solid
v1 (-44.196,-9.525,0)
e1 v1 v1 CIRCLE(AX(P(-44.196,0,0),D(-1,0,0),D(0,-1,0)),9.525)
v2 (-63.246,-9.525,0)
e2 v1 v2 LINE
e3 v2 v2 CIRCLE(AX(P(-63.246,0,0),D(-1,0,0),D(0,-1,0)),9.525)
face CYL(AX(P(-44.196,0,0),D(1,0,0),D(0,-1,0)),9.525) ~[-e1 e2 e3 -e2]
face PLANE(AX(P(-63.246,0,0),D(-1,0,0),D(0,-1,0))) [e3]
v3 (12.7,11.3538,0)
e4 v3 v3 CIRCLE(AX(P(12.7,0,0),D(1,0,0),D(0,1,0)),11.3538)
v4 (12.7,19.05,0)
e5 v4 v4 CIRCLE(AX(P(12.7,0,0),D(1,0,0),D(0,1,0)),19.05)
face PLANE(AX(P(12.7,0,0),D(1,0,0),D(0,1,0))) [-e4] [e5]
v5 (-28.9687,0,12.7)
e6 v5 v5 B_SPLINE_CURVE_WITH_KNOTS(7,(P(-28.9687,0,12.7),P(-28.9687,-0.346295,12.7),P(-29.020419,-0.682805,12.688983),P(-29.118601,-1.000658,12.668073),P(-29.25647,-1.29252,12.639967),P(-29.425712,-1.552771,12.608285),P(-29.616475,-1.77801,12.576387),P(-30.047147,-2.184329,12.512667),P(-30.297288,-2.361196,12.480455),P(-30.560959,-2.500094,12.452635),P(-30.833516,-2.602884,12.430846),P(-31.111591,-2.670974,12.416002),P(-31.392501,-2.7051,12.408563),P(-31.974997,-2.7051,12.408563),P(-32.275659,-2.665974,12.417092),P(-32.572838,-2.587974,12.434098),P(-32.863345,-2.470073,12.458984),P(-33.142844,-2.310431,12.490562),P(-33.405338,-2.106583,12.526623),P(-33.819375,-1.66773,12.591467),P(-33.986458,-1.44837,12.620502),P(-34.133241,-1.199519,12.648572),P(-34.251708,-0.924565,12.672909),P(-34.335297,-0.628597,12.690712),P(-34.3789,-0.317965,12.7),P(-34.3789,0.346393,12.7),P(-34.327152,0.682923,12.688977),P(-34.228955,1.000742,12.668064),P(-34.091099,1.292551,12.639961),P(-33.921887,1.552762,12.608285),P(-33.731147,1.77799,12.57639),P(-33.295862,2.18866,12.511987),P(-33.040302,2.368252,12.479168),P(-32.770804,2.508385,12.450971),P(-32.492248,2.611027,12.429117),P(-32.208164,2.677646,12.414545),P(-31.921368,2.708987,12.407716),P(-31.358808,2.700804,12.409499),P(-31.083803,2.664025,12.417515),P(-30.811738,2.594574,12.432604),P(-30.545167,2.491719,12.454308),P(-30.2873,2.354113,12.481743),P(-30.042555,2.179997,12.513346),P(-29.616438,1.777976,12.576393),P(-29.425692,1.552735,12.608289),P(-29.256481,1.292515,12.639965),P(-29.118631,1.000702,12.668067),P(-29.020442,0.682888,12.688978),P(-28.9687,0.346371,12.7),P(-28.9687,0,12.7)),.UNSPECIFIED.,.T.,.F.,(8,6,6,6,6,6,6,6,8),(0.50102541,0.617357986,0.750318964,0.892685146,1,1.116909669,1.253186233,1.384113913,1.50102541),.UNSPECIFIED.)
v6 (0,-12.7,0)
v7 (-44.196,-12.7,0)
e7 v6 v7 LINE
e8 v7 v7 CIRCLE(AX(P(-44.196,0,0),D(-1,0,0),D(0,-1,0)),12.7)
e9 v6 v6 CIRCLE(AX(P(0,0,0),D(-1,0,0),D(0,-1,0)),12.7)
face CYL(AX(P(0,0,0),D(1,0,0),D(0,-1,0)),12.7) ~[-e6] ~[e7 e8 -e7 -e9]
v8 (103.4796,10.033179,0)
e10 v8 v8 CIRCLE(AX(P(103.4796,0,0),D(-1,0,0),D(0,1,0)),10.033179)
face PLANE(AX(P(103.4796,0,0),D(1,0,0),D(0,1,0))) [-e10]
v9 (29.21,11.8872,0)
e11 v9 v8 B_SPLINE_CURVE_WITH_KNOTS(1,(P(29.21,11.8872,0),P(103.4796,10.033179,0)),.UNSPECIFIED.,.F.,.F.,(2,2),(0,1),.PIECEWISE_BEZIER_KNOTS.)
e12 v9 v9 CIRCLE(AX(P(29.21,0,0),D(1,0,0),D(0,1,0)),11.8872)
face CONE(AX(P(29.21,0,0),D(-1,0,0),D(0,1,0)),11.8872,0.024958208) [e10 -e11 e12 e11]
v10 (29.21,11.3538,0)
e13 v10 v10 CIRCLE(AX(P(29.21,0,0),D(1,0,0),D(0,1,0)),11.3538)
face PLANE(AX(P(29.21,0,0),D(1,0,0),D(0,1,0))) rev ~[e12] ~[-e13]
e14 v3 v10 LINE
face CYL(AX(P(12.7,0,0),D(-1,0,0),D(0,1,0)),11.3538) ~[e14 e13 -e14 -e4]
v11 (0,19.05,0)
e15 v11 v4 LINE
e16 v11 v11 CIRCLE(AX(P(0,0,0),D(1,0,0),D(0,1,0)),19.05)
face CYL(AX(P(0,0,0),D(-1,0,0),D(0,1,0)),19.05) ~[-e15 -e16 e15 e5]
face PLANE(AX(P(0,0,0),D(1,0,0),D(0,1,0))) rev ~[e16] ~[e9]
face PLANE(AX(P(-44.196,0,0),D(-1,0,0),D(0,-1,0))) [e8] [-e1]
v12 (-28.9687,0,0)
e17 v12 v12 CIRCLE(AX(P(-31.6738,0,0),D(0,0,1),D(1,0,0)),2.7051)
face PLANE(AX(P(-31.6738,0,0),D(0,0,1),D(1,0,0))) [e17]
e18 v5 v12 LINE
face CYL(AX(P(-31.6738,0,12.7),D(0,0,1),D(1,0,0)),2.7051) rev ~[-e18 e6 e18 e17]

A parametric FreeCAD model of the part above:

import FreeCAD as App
import Part
import Sketcher
from FreeCAD import Vector
Q = App.Units.Quantity

doc = App.newDocument("Part")
body = doc.addObject("PartDesign::Body", "Body")

# Sketch on YZ plane
sketch1 = doc.addObject("Sketcher::SketchObject", "Sketch")
body.addObject(sketch1)
sketch1.AttachmentSupport = (doc.YZ_Plane, [""])
sketch1.MapMode = "FlatFace"
sketch1.addGeometry(Part.Circle(Vector(0, 0, 0), Vector(0, 0, 1), 19), False)
sketch1.addConstraint(Sketcher.Constraint("Coincident", 0, 3, -1, 1))
sketch1.addConstraint(Sketcher.Constraint("Diameter", 0, Q("1.5 in")))
pad1 = doc.addObject("PartDesign::Pad", "Pad")
body.addObject(pad1)
pad1.Profile = sketch1
pad1.Length = Q("0.5 in")

# Sketch on YZ plane
sketch2 = doc.addObject("Sketcher::SketchObject", "Sketch001")
body.addObject(sketch2)
sketch2.AttachmentSupport = (doc.YZ_Plane, [""])
sketch2.MapMode = "FlatFace"
sketch2.addGeometry(Part.Circle(Vector(0, 0, 0), Vector(0, 0, 1), 13), False)
sketch2.addConstraint(Sketcher.Constraint("Coincident", 0, 3, -1, 1))
sketch2.addConstraint(Sketcher.Constraint("Diameter", 0, Q("1 in")))
pad2 = doc.addObject("PartDesign::Pad", "Pad001")
body.addObject(pad2)
pad2.Profile = sketch2
pad2.Length = Q("1.74 in")
pad2.Reversed = True

# Sketch on YZ plane
sketch3 = doc.addObject("Sketcher::SketchObject", "Sketch002")
body.addObject(sketch3)
sketch3.AttachmentSupport = (doc.YZ_Plane, [""])
sketch3.MapMode = "FlatFace"
sketch3.AttachmentOffset = App.Placement(Vector(0, 0, -1.74 * 25.4), App.Rotation())
sketch3.addGeometry(Part.Circle(Vector(0, 0, 0), Vector(0, 0, 1), 10), False)
sketch3.addConstraint(Sketcher.Constraint("Coincident", 0, 3, -1, 1))
sketch3.addConstraint(Sketcher.Constraint("Diameter", 0, Q("0.75 in")))
pad3 = doc.addObject("PartDesign::Pad", "Pad002")
body.addObject(pad3)
pad3.Profile = sketch3
pad3.Length = Q("0.75 in")
pad3.Reversed = True

# Sketch on YZ plane
sketch4 = doc.addObject("Sketcher::SketchObject", "Sketch003")
body.addObject(sketch4)
sketch4.AttachmentSupport = (doc.YZ_Plane, [""])
sketch4.MapMode = "FlatFace"
sketch4.AttachmentOffset = App.Placement(Vector(0, 0, 0.5 * 25.4), App.Rotation())
sketch4.addGeometry(Part.Circle(Vector(0, 0, 0), Vector(0, 0, 1), 11), False)
sketch4.addConstraint(Sketcher.Constraint("Coincident", 0, 3, -1, 1))
sketch4.addConstraint(Sketcher.Constraint("Diameter", 0, Q("0.894 in")))
pad4 = doc.addObject("PartDesign::Pad", "Pad003")
body.addObject(pad4)
pad4.Profile = sketch4
pad4.Length = Q("0.65 in")

# Sketch on YZ plane
sketch5 = doc.addObject("Sketcher::SketchObject", "Sketch004")
body.addObject(sketch5)
sketch5.AttachmentSupport = (doc.YZ_Plane, [""])
sketch5.MapMode = "FlatFace"
sketch5.AttachmentOffset = App.Placement(Vector(0, 0, 1.15 * 25.4), App.Rotation())
sketch5.addGeometry(Part.Circle(Vector(0, 0, 0), Vector(0, 0, 1), 12), False)
sketch5.addConstraint(Sketcher.Constraint("Coincident", 0, 3, -1, 1))
sketch5.addConstraint(Sketcher.Constraint("Diameter", 0, Q("0.936 in")))
pad5 = doc.addObject("PartDesign::Pad", "Pad004")
body.addObject(pad5)
pad5.Profile = sketch5
pad5.Length = Q("2.924 in")
pad5.TaperAngle = -1.43

# Sketch on XY plane
sketch6 = doc.addObject("Sketcher::SketchObject", "Sketch005")
body.addObject(sketch6)
sketch6.AttachmentSupport = (doc.XY_Plane, [""])
sketch6.MapMode = "FlatFace"
sketch6.AttachmentOffset = App.Placement(Vector(0, 0, 0.5 * 25.4), App.Rotation())
sketch6.addGeometry(Part.Circle(Vector(-31.7, 0, 0), Vector(0, 0, 1), 2.7), False)
sketch6.addConstraint(Sketcher.Constraint("PointOnObject", 0, 3, -1))
sketch6.addConstraint(Sketcher.Constraint("Diameter", 0, Q("0.213 in")))
sketch6.addConstraint(Sketcher.Constraint("DistanceX", 0, 3, -1, 1, Q("1.247 in")))
pocket1 = doc.addObject("PartDesign::Pocket", "Pocket")
body.addObject(pocket1)
pocket1.Profile = sketch6
pocket1.Length = Q("0.5 in")

doc.recompute()
